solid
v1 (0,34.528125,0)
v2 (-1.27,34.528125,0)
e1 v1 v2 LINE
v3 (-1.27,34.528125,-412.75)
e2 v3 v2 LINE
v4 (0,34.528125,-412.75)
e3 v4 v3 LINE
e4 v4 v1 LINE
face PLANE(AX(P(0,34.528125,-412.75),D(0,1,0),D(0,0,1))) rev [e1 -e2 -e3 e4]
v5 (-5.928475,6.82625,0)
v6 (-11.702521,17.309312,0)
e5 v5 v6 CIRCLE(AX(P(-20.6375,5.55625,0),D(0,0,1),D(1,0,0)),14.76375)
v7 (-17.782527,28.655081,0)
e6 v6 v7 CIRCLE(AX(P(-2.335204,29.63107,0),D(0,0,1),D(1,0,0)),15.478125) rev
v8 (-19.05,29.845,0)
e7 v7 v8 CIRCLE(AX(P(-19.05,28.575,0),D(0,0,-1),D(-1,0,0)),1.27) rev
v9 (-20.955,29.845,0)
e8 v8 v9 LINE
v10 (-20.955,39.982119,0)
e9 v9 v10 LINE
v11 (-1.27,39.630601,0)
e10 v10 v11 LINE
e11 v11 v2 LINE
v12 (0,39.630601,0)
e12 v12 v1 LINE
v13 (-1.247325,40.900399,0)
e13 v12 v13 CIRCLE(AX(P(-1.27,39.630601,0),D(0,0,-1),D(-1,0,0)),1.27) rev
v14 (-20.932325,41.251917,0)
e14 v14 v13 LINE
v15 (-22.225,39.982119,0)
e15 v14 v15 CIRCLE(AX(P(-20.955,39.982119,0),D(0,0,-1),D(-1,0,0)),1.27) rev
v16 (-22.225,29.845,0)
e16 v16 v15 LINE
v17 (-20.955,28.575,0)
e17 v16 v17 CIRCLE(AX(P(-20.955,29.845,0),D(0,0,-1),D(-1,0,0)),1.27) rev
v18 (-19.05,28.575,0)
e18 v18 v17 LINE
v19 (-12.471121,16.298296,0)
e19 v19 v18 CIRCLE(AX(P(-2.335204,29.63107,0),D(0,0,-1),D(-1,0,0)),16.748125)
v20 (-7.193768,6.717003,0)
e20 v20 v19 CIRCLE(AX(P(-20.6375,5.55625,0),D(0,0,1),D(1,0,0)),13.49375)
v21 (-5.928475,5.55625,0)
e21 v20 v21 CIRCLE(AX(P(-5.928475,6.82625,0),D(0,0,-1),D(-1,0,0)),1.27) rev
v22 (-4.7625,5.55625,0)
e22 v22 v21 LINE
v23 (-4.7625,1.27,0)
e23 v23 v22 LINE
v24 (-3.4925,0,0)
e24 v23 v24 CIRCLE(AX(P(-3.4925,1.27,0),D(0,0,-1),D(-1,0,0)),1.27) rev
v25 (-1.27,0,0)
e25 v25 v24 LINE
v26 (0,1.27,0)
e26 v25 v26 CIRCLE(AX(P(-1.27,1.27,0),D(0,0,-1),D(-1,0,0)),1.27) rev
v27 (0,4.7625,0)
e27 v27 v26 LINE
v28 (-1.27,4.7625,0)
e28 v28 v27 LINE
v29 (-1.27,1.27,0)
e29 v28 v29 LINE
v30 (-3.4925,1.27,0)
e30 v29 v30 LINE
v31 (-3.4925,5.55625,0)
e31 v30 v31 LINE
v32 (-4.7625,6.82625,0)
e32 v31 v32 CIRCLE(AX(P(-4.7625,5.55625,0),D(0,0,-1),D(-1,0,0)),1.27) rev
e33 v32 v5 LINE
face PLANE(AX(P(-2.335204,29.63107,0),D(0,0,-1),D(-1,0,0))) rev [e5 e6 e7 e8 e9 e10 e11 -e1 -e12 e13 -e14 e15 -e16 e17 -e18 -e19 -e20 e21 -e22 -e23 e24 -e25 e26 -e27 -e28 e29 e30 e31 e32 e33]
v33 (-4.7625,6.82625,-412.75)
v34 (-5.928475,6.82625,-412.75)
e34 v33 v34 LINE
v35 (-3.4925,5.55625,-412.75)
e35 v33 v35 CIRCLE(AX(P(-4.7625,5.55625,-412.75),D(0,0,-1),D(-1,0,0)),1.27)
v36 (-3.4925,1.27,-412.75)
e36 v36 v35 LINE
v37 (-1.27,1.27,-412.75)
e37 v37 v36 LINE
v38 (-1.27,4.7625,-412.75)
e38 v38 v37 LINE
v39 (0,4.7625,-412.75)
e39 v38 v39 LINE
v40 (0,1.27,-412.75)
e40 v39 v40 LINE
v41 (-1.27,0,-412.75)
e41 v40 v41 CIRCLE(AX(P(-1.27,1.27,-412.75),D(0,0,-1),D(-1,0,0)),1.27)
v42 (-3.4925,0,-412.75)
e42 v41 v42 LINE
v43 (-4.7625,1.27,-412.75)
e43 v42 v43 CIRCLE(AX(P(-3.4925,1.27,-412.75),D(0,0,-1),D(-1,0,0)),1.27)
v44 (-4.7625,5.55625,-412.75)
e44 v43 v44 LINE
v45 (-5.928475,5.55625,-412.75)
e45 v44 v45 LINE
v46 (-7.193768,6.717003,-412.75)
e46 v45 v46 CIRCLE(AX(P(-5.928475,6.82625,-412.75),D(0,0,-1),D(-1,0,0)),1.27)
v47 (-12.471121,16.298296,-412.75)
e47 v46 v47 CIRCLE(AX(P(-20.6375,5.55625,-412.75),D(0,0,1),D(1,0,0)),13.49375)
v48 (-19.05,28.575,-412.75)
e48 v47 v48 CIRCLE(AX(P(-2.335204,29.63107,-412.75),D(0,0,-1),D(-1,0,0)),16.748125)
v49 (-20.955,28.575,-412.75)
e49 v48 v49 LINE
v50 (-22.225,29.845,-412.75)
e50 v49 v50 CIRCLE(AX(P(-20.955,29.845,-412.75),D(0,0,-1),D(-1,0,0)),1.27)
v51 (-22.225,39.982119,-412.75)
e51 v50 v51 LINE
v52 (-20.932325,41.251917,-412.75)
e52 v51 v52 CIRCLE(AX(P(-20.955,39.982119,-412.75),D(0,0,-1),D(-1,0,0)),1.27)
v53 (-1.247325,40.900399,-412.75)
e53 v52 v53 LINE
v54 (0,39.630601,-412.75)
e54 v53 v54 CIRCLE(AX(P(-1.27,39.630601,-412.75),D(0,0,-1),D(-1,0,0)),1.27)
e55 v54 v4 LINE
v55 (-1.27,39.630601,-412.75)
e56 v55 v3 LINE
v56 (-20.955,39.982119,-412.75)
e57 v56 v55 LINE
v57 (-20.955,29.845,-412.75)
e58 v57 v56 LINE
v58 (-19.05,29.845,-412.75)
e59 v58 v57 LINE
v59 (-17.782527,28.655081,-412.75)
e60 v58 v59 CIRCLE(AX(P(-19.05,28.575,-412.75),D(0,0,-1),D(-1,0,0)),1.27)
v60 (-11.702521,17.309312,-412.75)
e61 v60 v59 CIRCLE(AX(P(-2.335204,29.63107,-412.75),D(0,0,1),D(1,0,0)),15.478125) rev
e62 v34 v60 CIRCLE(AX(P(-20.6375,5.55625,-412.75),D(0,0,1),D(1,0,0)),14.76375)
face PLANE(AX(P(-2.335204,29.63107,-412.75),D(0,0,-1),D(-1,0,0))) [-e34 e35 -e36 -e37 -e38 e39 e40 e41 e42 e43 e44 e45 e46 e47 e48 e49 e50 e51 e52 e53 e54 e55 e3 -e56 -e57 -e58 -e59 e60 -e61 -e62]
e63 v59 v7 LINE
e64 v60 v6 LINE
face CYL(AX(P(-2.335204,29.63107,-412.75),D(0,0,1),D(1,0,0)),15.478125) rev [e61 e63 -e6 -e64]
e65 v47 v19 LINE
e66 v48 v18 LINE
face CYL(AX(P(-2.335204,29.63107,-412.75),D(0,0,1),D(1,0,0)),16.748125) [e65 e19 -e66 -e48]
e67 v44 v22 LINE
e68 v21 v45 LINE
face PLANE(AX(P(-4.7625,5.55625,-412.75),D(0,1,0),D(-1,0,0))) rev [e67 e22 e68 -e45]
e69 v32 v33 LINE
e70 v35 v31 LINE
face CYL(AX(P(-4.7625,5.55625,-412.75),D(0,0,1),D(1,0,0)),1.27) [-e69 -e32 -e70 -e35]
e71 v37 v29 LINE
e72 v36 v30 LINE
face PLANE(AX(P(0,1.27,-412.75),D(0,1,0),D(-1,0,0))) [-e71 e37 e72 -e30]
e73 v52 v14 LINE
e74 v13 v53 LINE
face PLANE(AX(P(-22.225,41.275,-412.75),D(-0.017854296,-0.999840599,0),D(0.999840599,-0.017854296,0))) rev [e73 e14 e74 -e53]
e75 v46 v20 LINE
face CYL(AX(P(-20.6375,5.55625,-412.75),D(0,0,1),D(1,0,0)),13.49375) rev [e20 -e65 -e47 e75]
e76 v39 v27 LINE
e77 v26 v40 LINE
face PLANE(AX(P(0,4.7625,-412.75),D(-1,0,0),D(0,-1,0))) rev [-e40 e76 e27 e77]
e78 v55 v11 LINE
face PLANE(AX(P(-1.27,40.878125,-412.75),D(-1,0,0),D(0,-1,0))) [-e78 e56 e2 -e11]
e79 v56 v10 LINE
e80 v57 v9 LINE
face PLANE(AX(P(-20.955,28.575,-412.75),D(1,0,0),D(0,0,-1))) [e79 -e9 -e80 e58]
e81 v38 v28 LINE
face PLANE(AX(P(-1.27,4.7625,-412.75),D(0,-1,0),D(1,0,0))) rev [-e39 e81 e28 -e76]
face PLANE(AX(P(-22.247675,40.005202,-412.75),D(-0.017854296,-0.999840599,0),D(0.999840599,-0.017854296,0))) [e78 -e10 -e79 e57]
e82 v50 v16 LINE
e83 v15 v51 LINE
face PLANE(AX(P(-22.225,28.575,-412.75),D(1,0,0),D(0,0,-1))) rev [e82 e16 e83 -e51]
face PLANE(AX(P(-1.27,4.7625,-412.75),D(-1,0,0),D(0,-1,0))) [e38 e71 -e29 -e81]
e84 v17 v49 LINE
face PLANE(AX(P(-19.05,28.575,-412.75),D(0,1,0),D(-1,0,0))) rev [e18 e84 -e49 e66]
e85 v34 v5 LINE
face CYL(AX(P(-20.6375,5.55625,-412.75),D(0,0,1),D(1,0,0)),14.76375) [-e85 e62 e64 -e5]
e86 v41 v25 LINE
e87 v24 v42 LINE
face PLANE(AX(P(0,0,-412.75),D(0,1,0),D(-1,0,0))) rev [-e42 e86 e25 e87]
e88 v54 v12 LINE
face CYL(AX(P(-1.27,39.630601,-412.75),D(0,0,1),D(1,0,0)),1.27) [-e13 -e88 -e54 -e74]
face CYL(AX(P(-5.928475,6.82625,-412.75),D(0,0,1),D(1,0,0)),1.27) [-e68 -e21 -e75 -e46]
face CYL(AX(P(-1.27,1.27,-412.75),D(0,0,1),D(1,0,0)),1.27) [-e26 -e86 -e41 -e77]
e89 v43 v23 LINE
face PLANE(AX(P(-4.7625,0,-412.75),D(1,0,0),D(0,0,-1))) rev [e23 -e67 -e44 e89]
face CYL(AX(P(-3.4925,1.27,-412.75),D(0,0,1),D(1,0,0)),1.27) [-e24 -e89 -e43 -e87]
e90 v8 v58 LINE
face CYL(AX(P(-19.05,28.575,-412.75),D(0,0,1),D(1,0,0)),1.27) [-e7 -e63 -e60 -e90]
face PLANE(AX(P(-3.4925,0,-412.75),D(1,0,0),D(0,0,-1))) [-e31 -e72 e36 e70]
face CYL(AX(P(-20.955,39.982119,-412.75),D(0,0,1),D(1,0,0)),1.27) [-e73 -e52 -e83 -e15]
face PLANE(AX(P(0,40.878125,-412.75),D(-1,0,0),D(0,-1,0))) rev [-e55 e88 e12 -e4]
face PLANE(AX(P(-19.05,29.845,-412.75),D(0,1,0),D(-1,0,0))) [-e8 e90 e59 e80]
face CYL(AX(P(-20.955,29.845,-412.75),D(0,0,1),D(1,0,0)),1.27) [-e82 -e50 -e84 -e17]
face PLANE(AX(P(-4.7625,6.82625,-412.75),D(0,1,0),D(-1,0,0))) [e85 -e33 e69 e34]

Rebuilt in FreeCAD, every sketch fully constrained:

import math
import FreeCAD as App
import Part
import Sketcher
Q = App.Units.Quantity


def edges_at(feature, points):
    """Names of the edges that pass closest to the given points."""
    edges = feature.Shape.Edges
    near = lambda p: min(range(len(edges)), key=lambda i: edges[i].distToShape(Part.Vertex(*p))[0])
    return sorted({f"Edge{near(p) + 1}" for p in points})

doc = App.newDocument("Part")
body = doc.addObject("PartDesign::Body", "Body")

sketch1 = body.newObject("Sketcher::SketchObject", "Sketch")
sketch1.AttachmentSupport = (doc.getObject("XY_Plane"), [""])
sketch1.MapMode = "FlatFace"
sketch1.addGeometry(Part.LineSegment(App.Vector(0, 0, 0), App.Vector(0, 4.8, 0)), False)
sketch1.addGeometry(Part.LineSegment(App.Vector(0, 4.8, 0), App.Vector(-1.3, 4.8, 0)), False)
sketch1.addGeometry(Part.LineSegment(App.Vector(-1.3, 4.8, 0), App.Vector(-1.3, 1.3, 0)), False)
sketch1.addGeometry(Part.LineSegment(App.Vector(-1.3, 1.3, 0), App.Vector(-3.5, 1.3, 0)), False)
sketch1.addGeometry(Part.LineSegment(App.Vector(-3.5, 1.3, 0), App.Vector(-3.5, 6.8, 0)), False)
sketch1.addGeometry(Part.LineSegment(App.Vector(-3.5, 6.8, 0), App.Vector(-5.9, 6.8, 0)), False)
sketch1.addGeometry(Part.ArcOfCircle(Part.Circle(App.Vector(-20.6, 5.6, 0), App.Vector(0, 0, 1), 14.8), math.radians(5), math.radians(53)), False)
sketch1.addGeometry(Part.ArcOfCircle(Part.Circle(App.Vector(-2.3, 29.6, 0), App.Vector(0, 0, 1), 15.5), math.radians(179), math.radians(233)), False)
sketch1.addGeometry(Part.LineSegment(App.Vector(-17.8, 29.8, 0), App.Vector(-21, 29.8, 0)), False)
sketch1.addGeometry(Part.LineSegment(App.Vector(-21, 29.8, 0), App.Vector(-21, 40, 0)), False)
sketch1.addGeometry(Part.LineSegment(App.Vector(-21, 40, 0), App.Vector(-1.3, 39.6, 0)), False)
sketch1.addGeometry(Part.LineSegment(App.Vector(-1.3, 39.6, 0), App.Vector(-1.3, 34.5, 0)), False)
sketch1.addGeometry(Part.LineSegment(App.Vector(-1.3, 34.5, 0), App.Vector(0, 34.5, 0)), False)
sketch1.addGeometry(Part.LineSegment(App.Vector(0, 34.5, 0), App.Vector(0, 40.9, 0)), False)
sketch1.addGeometry(Part.LineSegment(App.Vector(0, 40.9, 0), App.Vector(-22.2, 41.3, 0)), False)
sketch1.addGeometry(Part.LineSegment(App.Vector(-22.2, 41.3, 0), App.Vector(-22.2, 28.6, 0)), False)
sketch1.addGeometry(Part.LineSegment(App.Vector(-22.2, 28.6, 0), App.Vector(-19.1, 28.6, 0)), False)
sketch1.addGeometry(Part.ArcOfCircle(Part.Circle(App.Vector(-2.3, 29.6, 0), App.Vector(0, 0, 1), 16.7), math.radians(-176), math.radians(-127)), False)
sketch1.addGeometry(Part.ArcOfCircle(Part.Circle(App.Vector(-20.6, 5.6, 0), App.Vector(0, 0, 1), 13.5), math.radians(0), math.radians(53)), False)
sketch1.addGeometry(Part.LineSegment(App.Vector(-7.1, 5.6, 0), App.Vector(-4.8, 5.6, 0)), False)
sketch1.addGeometry(Part.LineSegment(App.Vector(-4.8, 5.6, 0), App.Vector(-4.8, 0, 0)), False)
sketch1.addGeometry(Part.LineSegment(App.Vector(-4.8, 0, 0), App.Vector(0, 0, 0)), False)
sketch1.addConstraint(Sketcher.Constraint("Coincident", 0, 2, 1, 1))
sketch1.addConstraint(Sketcher.Constraint("Coincident", 1, 2, 2, 1))
sketch1.addConstraint(Sketcher.Constraint("Coincident", 2, 2, 3, 1))
sketch1.addConstraint(Sketcher.Constraint("Coincident", 3, 2, 4, 1))
sketch1.addConstraint(Sketcher.Constraint("Coincident", 4, 2, 5, 1))
sketch1.addConstraint(Sketcher.Constraint("Coincident", 5, 2, 6, 1))
sketch1.addConstraint(Sketcher.Constraint("Tangent", 6, 2, 7, 2))
sketch1.addConstraint(Sketcher.Constraint("Coincident", 7, 1, 8, 1))
sketch1.addConstraint(Sketcher.Constraint("Coincident", 8, 2, 9, 1))
sketch1.addConstraint(Sketcher.Constraint("Coincident", 9, 2, 10, 1))
sketch1.addConstraint(Sketcher.Constraint("Coincident", 10, 2, 11, 1))
sketch1.addConstraint(Sketcher.Constraint("Coincident", 11, 2, 12, 1))
sketch1.addConstraint(Sketcher.Constraint("Coincident", 12, 2, 13, 1))
sketch1.addConstraint(Sketcher.Constraint("Coincident", 13, 2, 14, 1))
sketch1.addConstraint(Sketcher.Constraint("Coincident", 14, 2, 15, 1))
sketch1.addConstraint(Sketcher.Constraint("Coincident", 15, 2, 16, 1))
sketch1.addConstraint(Sketcher.Constraint("Coincident", 16, 2, 17, 1))
sketch1.addConstraint(Sketcher.Constraint("Tangent", 17, 2, 18, 2))
sketch1.addConstraint(Sketcher.Constraint("Coincident", 18, 1, 19, 1))
sketch1.addConstraint(Sketcher.Constraint("Coincident", 19, 2, 20, 1))
sketch1.addConstraint(Sketcher.Constraint("Coincident", 20, 2, 21, 1))
sketch1.addConstraint(Sketcher.Constraint("Coincident", 21, 2, 0, 1))
sketch1.addConstraint(Sketcher.Constraint("Vertical", 0))
sketch1.addConstraint(Sketcher.Constraint("Horizontal", 1))
sketch1.addConstraint(Sketcher.Constraint("Vertical", 2))
sketch1.addConstraint(Sketcher.Constraint("Horizontal", 3))
sketch1.addConstraint(Sketcher.Constraint("Vertical", 4))
sketch1.addConstraint(Sketcher.Constraint("Horizontal", 5))
sketch1.addConstraint(Sketcher.Constraint("Horizontal", 8))
sketch1.addConstraint(Sketcher.Constraint("Vertical", 9))
sketch1.addConstraint(Sketcher.Constraint("Vertical", 11))
sketch1.addConstraint(Sketcher.Constraint("Horizontal", 12))
sketch1.addConstraint(Sketcher.Constraint("Vertical", 13))
sketch1.addConstraint(Sketcher.Constraint("Vertical", 15))
sketch1.addConstraint(Sketcher.Constraint("Horizontal", 16))
sketch1.addConstraint(Sketcher.Constraint("Horizontal", 19))
sketch1.addConstraint(Sketcher.Constraint("Vertical", 20))
sketch1.addConstraint(Sketcher.Constraint("Horizontal", 21))
sketch1.addConstraint(Sketcher.Constraint("Coincident", 21, 2, -1, 1))
sketch1.addConstraint(Sketcher.Constraint("Coincident", 17, 3, 7, 3))
sketch1.addConstraint(Sketcher.Constraint("Coincident", 18, 3, 6, 3))
sketch1.addConstraint(Sketcher.Constraint("PointOnObject", 12, 2, -2))
sketch1.addConstraint(Sketcher.Constraint("Parallel", 10, 14))
sketch1.addConstraint(Sketcher.Constraint("Horizontal", 6, 3, 18, 1))
sketch1.addConstraint(Sketcher.Constraint("Vertical", 2, 2, 10, 2))
sketch1.addConstraint(Sketcher.Constraint("Equal", 21, 0))
sketch1.addConstraint(Sketcher.Constraint("Equal", 4, 20))
sketch1.addConstraint(Sketcher.Constraint("DistanceY", 15, 2, 15, 1, Q("0.5 in")))
sketch1.addConstraint(Sketcher.Constraint("Radius", 7, Q("0.609375 in")))
sketch1.addConstraint(Sketcher.Constraint("Radius", 18, Q("0.53125 in")))
sketch1.addConstraint(Sketcher.Constraint("DistanceX", 1, 2, 1, 1, Q("0.05 in")))
sketch1.addConstraint(Sketcher.Constraint("DistanceY", 13, 1, 13, 2, Q("0.25 in")))
sketch1.addConstraint(Sketcher.Constraint("DistanceX", 16, 1, 16, 2, Q("0.125 in")))
sketch1.addConstraint(Sketcher.Constraint("DistanceX", 19, 1, 19, 2, Q("0.09375 in")))
sketch1.addConstraint(Sketcher.Constraint("DistanceX", 21, 1, 21, 2, Q("0.1875 in")))
sketch1.addConstraint(Sketcher.Constraint("DistanceY", 4, 1, 4, 2, Q("0.21875 in")))
sketch1.addConstraint(Sketcher.Constraint("DistanceY", -1, 1, 2, 2, Q("0.05 in")))
sketch1.addConstraint(Sketcher.Constraint("DistanceX", 16, 2, -1, 1, Q("0.75 in")))
sketch1.addConstraint(Sketcher.Constraint("DistanceX", 14, 2, 9, 2, Q("0.05 in")))
sketch1.addConstraint(Sketcher.Constraint("DistanceY", 8, 2, 14, 2, Q("0.45 in")))
sketch1.addConstraint(Sketcher.Constraint("DistanceX", 19, 2, 4, 2, Q("0.05 in")))
sketch1.addConstraint(Sketcher.Constraint("DistanceY", -1, 1, 7, 1, Q("1.175 in")))
sketch1.addConstraint(Sketcher.Constraint("DistanceY", -1, 1, 11, 2, Q("1.359375 in")))
sketch1.addConstraint(Sketcher.Constraint("Radius", 6, Q("14.76375 mm")))
sketch1.addConstraint(Sketcher.Constraint("DistanceY", 9, 1, 9, 2, Q("10.137119 mm")))
pad1 = body.newObject("PartDesign::Pad", "Pad")
pad1.Profile = sketch1
pad1.Length = Q("16.25 in")
pad1.Reversed = True
doc.recompute()

fillet = body.newObject("PartDesign::Fillet", "Fillet")
fillet.Base = (pad1, edges_at(pad1, [
    (-17.812, 29.845, -206.375),
    (-3.493, 6.826, -206.375),
    (0, 0, -206.375),
    (-4.763, 0, -206.375),
    (-7.144, 5.556, -206.375),
    (-22.225, 28.575, -206.375),
    (-22.225, 41.275, -206.375),
    (0, 40.878, -206.375),
]))
fillet.Radius = Q("0.05 in")

doc.recompute()
